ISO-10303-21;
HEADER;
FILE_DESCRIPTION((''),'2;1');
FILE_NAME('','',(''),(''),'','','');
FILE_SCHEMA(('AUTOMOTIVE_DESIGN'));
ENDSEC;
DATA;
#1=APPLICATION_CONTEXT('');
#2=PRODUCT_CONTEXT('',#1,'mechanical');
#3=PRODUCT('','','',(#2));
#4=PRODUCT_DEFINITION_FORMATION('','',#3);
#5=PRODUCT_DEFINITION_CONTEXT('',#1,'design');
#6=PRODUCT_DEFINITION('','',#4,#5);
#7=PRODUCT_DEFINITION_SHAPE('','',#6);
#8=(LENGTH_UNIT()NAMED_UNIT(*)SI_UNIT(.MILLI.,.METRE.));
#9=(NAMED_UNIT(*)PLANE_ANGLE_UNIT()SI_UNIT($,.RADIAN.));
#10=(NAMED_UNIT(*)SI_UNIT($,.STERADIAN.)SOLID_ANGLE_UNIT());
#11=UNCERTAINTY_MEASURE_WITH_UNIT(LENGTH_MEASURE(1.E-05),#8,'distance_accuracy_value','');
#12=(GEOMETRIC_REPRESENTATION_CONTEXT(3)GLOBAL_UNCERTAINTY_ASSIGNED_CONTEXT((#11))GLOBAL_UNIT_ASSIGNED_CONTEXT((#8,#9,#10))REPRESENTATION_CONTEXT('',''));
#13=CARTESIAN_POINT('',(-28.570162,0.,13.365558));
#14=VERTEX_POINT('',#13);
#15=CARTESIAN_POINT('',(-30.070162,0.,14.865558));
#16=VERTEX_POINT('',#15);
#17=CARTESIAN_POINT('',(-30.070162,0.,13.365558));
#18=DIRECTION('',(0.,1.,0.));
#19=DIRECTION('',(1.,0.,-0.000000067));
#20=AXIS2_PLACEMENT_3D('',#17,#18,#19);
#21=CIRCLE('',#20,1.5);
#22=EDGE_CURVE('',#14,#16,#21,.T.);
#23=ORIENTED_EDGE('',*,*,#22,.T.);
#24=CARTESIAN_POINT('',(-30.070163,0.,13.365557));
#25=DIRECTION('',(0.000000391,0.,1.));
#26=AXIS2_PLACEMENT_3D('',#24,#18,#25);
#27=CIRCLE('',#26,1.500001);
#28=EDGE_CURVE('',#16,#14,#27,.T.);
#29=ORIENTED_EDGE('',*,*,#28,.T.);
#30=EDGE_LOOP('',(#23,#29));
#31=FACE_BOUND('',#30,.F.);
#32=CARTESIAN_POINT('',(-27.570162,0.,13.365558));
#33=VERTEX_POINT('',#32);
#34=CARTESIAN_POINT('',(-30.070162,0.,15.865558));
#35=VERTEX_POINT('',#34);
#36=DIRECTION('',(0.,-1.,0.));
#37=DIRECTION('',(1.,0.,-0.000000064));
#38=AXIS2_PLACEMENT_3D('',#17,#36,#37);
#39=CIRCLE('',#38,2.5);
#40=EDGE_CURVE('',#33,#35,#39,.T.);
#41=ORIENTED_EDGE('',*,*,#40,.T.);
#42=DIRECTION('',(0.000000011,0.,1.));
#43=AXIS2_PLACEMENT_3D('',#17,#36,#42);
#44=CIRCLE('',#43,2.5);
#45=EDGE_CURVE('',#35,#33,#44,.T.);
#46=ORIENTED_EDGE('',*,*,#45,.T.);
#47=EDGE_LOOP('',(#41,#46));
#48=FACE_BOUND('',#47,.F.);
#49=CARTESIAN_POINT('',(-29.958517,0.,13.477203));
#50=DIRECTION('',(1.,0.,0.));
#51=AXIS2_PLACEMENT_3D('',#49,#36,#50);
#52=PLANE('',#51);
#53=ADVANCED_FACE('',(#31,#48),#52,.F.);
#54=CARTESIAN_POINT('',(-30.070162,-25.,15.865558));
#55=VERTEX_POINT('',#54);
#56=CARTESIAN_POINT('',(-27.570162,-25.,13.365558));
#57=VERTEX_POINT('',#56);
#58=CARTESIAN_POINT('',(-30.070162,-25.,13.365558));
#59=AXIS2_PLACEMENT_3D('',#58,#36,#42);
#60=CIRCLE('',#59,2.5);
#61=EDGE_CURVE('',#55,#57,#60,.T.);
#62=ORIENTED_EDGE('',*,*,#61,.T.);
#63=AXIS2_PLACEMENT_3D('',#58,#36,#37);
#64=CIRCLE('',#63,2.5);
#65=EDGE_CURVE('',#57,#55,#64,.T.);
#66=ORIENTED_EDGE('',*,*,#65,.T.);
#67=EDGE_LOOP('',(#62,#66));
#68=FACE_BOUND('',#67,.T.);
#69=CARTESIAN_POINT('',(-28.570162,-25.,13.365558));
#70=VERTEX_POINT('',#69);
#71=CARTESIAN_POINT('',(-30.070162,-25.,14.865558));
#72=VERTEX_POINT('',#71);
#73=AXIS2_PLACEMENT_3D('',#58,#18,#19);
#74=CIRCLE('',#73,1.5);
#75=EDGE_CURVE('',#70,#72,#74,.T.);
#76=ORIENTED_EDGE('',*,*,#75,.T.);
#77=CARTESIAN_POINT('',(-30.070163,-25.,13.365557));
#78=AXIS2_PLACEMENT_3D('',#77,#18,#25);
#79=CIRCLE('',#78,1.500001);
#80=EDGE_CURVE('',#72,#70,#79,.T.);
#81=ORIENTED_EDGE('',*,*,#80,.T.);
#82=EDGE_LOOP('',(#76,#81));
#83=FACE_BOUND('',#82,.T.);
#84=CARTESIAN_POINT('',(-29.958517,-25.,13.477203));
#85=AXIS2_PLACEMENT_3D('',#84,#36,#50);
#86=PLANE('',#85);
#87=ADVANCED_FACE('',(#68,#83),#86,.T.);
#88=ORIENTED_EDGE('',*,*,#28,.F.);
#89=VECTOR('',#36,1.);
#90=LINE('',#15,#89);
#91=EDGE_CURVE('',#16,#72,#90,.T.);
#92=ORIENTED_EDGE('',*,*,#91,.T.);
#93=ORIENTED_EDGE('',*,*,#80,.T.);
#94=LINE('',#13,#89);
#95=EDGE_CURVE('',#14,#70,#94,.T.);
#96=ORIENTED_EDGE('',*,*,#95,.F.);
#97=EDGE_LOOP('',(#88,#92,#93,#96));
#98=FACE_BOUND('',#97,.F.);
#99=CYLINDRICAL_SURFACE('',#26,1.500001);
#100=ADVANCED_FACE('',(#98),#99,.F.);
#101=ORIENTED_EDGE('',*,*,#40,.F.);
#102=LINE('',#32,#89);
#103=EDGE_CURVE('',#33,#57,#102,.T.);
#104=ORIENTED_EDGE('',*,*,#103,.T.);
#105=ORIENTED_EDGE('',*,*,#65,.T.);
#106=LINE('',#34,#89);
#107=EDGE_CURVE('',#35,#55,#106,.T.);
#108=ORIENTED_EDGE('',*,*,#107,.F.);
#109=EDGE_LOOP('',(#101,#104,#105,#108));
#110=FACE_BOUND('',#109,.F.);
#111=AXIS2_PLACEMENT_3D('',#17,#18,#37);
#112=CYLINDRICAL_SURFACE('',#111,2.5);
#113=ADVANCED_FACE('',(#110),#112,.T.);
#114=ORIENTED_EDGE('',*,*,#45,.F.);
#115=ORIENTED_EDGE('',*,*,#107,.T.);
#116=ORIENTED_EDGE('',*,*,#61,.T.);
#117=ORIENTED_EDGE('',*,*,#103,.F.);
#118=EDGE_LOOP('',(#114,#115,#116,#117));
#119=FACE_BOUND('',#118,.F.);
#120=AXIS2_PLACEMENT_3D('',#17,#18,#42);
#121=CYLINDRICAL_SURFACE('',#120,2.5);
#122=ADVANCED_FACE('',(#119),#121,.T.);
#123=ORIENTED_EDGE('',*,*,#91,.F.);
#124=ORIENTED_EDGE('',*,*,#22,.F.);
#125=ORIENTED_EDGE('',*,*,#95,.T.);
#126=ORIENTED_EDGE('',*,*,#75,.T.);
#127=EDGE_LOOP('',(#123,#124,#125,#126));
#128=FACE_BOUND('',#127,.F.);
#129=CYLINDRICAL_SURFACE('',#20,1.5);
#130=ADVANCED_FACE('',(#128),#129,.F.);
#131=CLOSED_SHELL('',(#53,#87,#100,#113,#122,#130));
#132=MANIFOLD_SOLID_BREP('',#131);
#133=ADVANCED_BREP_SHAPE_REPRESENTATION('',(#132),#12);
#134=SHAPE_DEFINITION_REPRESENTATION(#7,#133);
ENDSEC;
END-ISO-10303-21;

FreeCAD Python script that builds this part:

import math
import FreeCAD as App
import Part
import Sketcher
from FreeCAD import Vector

doc = App.newDocument("Part")
body = doc.addObject("PartDesign::Body", "Body")

# Sketch on XZ plane
sketch1 = doc.addObject("Sketcher::SketchObject", "Sketch")
body.addObject(sketch1)
sketch1.AttachmentSupport = (doc.XZ_Plane, [""])
sketch1.MapMode = "FlatFace"
sketch1.addGeometry([
    Part.ArcOfCircle(Part.Circle(Vector(-30, 125, 0), Vector(0, 0, 1), 79), math.radians(-98.07), math.radians(-90)),  # 0
    Part.ArcOfCircle(Part.Circle(Vector(-30, 13, 0), Vector(0, 0, 1), 36), math.radians(108), math.radians(432)),  # 1
    Part.ArcOfCircle(Part.Circle(Vector(-30, 125, 0), Vector(0, 0, 1), 79), math.radians(-90), math.radians(-81.93)),  # 2
    Part.ArcOfCircle(Part.Circle(Vector(-30, 13, 0), Vector(0, 0, 1), 7), math.radians(0), math.radians(90)),  # 3
    Part.ArcOfCircle(Part.Circle(Vector(-30, 13, 0), Vector(0, 0, 1), 8), math.radians(90), math.radians(360)),  # 4
], False)
sketch1.addConstraint([
    Sketcher.Constraint("Coincident", 0, 1, 1, 1),
    Sketcher.Constraint("Coincident", 1, 2, 2, 2),
    Sketcher.Constraint("Tangent", 2, 1, 0, 2),
    Sketcher.Constraint("Tangent", 3, 1, 4, 2),
    Sketcher.Constraint("Coincident", 4, 1, 3, 2),
    Sketcher.Constraint("Coincident", 3, 3, 1, 3),
    Sketcher.Constraint("Equal", 0, 2),
    Sketcher.Constraint("Horizontal", 0, 1, 1, 2),
    Sketcher.Constraint("Horizontal", 4, 3, 3, 1),
    Sketcher.Constraint("Vertical", 4, 3, 2, 1),
    Sketcher.Constraint("Vertical", 2, 1, 4, 1),
    Sketcher.Constraint("Radius", 3, 7.5),
    Sketcher.Constraint("Radius", 0, 79.000024),
    Sketcher.Constraint("Radius", 1, 35.565326),
    Sketcher.Constraint("DistanceX", 0, 3, -1, 1, 30.070161),
    Sketcher.Constraint("DistanceY", -1, 1, 1, 3, 13.365558),
    Sketcher.Constraint("DistanceX", 0, 1, -1, 1, 41.166509),
])
pad1 = doc.addObject("PartDesign::Pad", "Pad")
body.addObject(pad1)
pad1.Profile = sketch1
pad1.Length = 6

# Sketch on XZ plane
sketch2 = doc.addObject("Sketcher::SketchObject", "Sketch001")
body.addObject(sketch2)
sketch2.AttachmentSupport = (doc.XZ_Plane, [""])
sketch2.MapMode = "FlatFace"
sketch2.addGeometry([
    Part.ArcOfCircle(Part.Circle(Vector(-28.6, 43.2, 0), Vector(0, 0, 1), 13.2), math.radians(96), math.radians(162)),  # 0
    Part.ArcOfCircle(Part.Circle(Vector(-30.1, 125.4, 0), Vector(0, 0, 1), 79), math.radians(-98.07), math.radians(-90)),  # 1
    Part.ArcOfCircle(Part.Circle(Vector(-30.1, 125.4, 0), Vector(0, 0, 1), 79), math.radians(-90), math.radians(-81.93)),  # 2
    Part.ArcOfCircle(Part.Circle(Vector(-31.6, 43.2, 0), Vector(0, 0, 1), 13.2), math.radians(18), math.radians(84)),  # 3
    Part.ArcOfCircle(Part.Circle(Vector(-30.1, 52.7, 0), Vector(0, 0, 1), 2), math.radians(90), math.radians(270)),  # 4
    Part.ArcOfCircle(Part.Circle(Vector(-30.1, 52.7, 0), Vector(0, 0, 1), 2), math.radians(0), math.radians(90)),  # 5
    Part.ArcOfCircle(Part.Circle(Vector(-30.1, 52.7, 0), Vector(0, 0, 1), 2), math.radians(-90), math.radians(0)),  # 6
], False)
sketch2.addConstraint([
    Sketcher.Constraint("Coincident", 0, 2, 1, 1),
    Sketcher.Constraint("Tangent", 1, 2, 2, 1),
    Sketcher.Constraint("Coincident", 2, 2, 3, 1),
    Sketcher.Constraint("Coincident", 3, 2, 0, 1),
    Sketcher.Constraint("Tangent", 4, 1, 5, 2),
    Sketcher.Constraint("Tangent", 5, 1, 6, 2),
    Sketcher.Constraint("Tangent", 6, 1, 4, 2),
    Sketcher.Constraint("Equal", 1, 2),
    Sketcher.Constraint("Equal", 0, 3),
    Sketcher.Constraint("Horizontal", 0, 3, 3, 3),
    Sketcher.Constraint("Horizontal", 0, 2, 2, 2),
    Sketcher.Constraint("Horizontal", 6, 3, 5, 1),
    Sketcher.Constraint("Vertical", 2, 3, 4, 3),
    Sketcher.Constraint("Vertical", 6, 3, 1, 2),
    Sketcher.Constraint("Vertical", 3, 2, 4, 1),
    Sketcher.Constraint("Vertical", 4, 1, 6, 1),
    Sketcher.Constraint("Radius", 4, 2.0),
    Sketcher.Constraint("Radius", 0, 13.211998),
    Sketcher.Constraint("Radius", 1, 79.000024),
    Sketcher.Constraint("DistanceX", 0, 3, -1, 1, 28.575601),
    Sketcher.Constraint("DistanceY", -1, 1, 3, 2, 56.279502),
    Sketcher.Constraint("DistanceY", -1, 1, 0, 3, 43.152309),
    Sketcher.Constraint("DistanceY", -1, 1, 4, 3, 52.721558),
    Sketcher.Constraint("DistanceX", 0, 2, -1, 1, 41.166509),
])
pad2 = doc.addObject("PartDesign::Pad", "Pad001")
body.addObject(pad2)
pad2.Profile = sketch2
pad2.Length = 3
body2 = doc.addObject("PartDesign::Body", "Body001")

# Sketch on XZ plane
sketch3 = doc.addObject("Sketcher::SketchObject", "Sketch002")
body2.addObject(sketch3)
sketch3.AttachmentSupport = (doc.getObject("XZ_Plane001"), [""])
sketch3.MapMode = "FlatFace"
sketch3.addGeometry([
    Part.ArcOfCircle(Part.Circle(Vector(-30.1, 13.4, 0), Vector(0, 0, 1), 2.5), math.radians(0), math.radians(90)),
    Part.ArcOfCircle(Part.Circle(Vector(-30.1, 13.4, 0), Vector(0, 0, 1), 2.5), math.radians(90), math.radians(360)),
    Part.ArcOfCircle(Part.Circle(Vector(-30.1, 13.4, 0), Vector(0, 0, 1), 1.5), math.radians(0), math.radians(90)),
    Part.ArcOfCircle(Part.Circle(Vector(-30.1, 13.4, 0), Vector(0, 0, 1), 1.5), math.radians(90), math.radians(360)),
], False)
sketch3.addConstraint([
    Sketcher.Constraint("Tangent", 0, 1, 1, 2),
    Sketcher.Constraint("Coincident", 1, 1, 0, 2),
    Sketcher.Constraint("Tangent", 2, 1, 3, 2),
    Sketcher.Constraint("Coincident", 3, 1, 2, 2),
    Sketcher.Constraint("Coincident", 2, 3, 0, 3),
    Sketcher.Constraint("Horizontal", 3, 3, 0, 1),
    Sketcher.Constraint("Horizontal", 0, 1, 2, 1),
    Sketcher.Constraint("Vertical", 3, 3, 1, 1),
    Sketcher.Constraint("Vertical", 1, 1, 3, 1),
    Sketcher.Constraint("Radius", 0, 2.5),
    Sketcher.Constraint("Radius", 2, 1.500001),
    Sketcher.Constraint("DistanceX", 0, 3, -1, 1, 30.070162),
    Sketcher.Constraint("DistanceY", -1, 1, 0, 3, 13.365558),
])
pad3 = doc.addObject("PartDesign::Pad", "Pad002")
body2.addObject(pad3)
pad3.Profile = sketch3
pad3.Length = 25
body3 = doc.addObject("PartDesign::Body", "Body002")

# Sketch on XZ plane
sketch4 = doc.addObject("Sketcher::SketchObject", "Sketch003")
body3.addObject(sketch4)
sketch4.AttachmentSupport = (doc.getObject("XZ_Plane002"), [""])
sketch4.MapMode = "FlatFace"
sketch4.addGeometry([
    Part.ArcOfCircle(Part.Circle(Vector(-30.1, 13.4, 0), Vector(0, 0, 1), 7.5), math.radians(0), math.radians(90)),
    Part.ArcOfCircle(Part.Circle(Vector(-30.1, 13.4, 0), Vector(0, 0, 1), 7.5), math.radians(90), math.radians(360)),
    Part.ArcOfCircle(Part.Circle(Vector(-30.1, 13.4, 0), Vector(0, 0, 1), 2.5), math.radians(0), math.radians(90)),
    Part.ArcOfCircle(Part.Circle(Vector(-30.1, 13.4, 0), Vector(0, 0, 1), 2.5), math.radians(90), math.radians(360)),
], False)
sketch4.addConstraint([
    Sketcher.Constraint("Tangent", 0, 1, 1, 2),
    Sketcher.Constraint("Coincident", 1, 1, 0, 2),
    Sketcher.Constraint("Tangent", 2, 1, 3, 2),
    Sketcher.Constraint("Coincident", 3, 1, 2, 2),
    Sketcher.Constraint("Coincident", 2, 3, 0, 3),
    Sketcher.Constraint("Horizontal", 3, 3, 0, 1),
    Sketcher.Constraint("Horizontal", 0, 1, 2, 1),
    Sketcher.Constraint("Vertical", 3, 3, 1, 1),
    Sketcher.Constraint("Vertical", 1, 1, 3, 1),
    Sketcher.Constraint("Radius", 0, 7.5),
    Sketcher.Constraint("Radius", 2, 2.5),
    Sketcher.Constraint("DistanceX", 0, 3, -1, 1, 30.070162),
    Sketcher.Constraint("DistanceY", -1, 1, 0, 3, 13.365558),
])
pad4 = doc.addObject("PartDesign::Pad", "Pad003")
body3.addObject(pad4)
pad4.Profile = sketch4
pad4.Length = 25
pad4.Reversed = True
body.Visibility = False
body3.Visibility = False

doc.recompute()
